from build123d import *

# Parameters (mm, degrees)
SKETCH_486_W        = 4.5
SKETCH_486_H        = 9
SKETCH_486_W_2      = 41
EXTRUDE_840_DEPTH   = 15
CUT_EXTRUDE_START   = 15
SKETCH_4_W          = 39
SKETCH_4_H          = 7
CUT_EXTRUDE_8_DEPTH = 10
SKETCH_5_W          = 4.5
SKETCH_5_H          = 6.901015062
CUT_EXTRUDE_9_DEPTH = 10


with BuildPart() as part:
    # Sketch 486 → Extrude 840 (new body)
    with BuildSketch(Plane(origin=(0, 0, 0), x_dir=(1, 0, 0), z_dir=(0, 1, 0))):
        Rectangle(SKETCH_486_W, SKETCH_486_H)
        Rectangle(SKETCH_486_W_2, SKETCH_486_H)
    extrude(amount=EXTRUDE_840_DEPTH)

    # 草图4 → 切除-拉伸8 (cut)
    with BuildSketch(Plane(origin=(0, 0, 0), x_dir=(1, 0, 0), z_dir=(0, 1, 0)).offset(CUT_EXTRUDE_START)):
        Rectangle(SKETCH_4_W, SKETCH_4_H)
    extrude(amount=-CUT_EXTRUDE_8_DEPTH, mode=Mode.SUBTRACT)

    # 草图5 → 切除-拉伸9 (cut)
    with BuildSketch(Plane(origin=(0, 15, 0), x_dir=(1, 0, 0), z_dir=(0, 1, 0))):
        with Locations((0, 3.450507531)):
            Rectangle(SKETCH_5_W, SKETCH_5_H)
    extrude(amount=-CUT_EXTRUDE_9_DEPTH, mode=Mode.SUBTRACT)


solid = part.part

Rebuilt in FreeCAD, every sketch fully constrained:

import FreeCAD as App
import Part
import Sketcher
Q = App.Units.Quantity

doc = App.newDocument("Part")
body = doc.addObject("PartDesign::Body", "Body")

# Sketch on XZ plane
sketch1 = body.newObject("Sketcher::SketchObject", "Sketch")
sketch1.AttachmentSupport = (doc.getObject("XZ_Plane"), [""])
sketch1.MapMode = "FlatFace"
sketch1.addGeometry([
    Part.LineSegment(App.Vector(20.5, 4.5, 0), App.Vector(20.5, -4.5, 0)),
    Part.LineSegment(App.Vector(20.5, -4.5, 0), App.Vector(-20.5, -4.5, 0)),
    Part.LineSegment(App.Vector(-20.5, -4.5, 0), App.Vector(-20.5, 4.5, 0)),
    Part.LineSegment(App.Vector(-20.5, 4.5, 0), App.Vector(20.5, 4.5, 0)),
], False)
sketch1.addConstraint([
    Sketcher.Constraint("Coincident", 0, 2, 1, 1),
    Sketcher.Constraint("Coincident", 1, 2, 2, 1),
    Sketcher.Constraint("Coincident", 2, 2, 3, 1),
    Sketcher.Constraint("Coincident", 3, 2, 0, 1),
    Sketcher.Constraint("Vertical", 0),
    Sketcher.Constraint("Horizontal", 1),
    Sketcher.Constraint("Vertical", 2),
    Sketcher.Constraint("Horizontal", 3),
    Sketcher.Constraint("Symmetric", 0, 2, 2, 2, -1, 1),
    Sketcher.Constraint("DistanceX", 1, 2, 1, 1, Q("41 mm")),
    Sketcher.Constraint("DistanceY", 0, 2, 0, 1, Q("9 mm")),
])
pad1 = body.newObject("PartDesign::Pad", "Pad")
pad1.Profile = sketch1
pad1.Length = 15
pad1.Reversed = True

# Sketch on XZ plane
sketch2 = body.newObject("Sketcher::SketchObject", "Sketch001")
sketch2.AttachmentSupport = (doc.getObject("XZ_Plane"), [""])
sketch2.MapMode = "FlatFace"
sketch2.AttachmentOffset = App.Placement(App.Vector(0, 0, -15), App.Rotation())
sketch2.addGeometry([
    Part.LineSegment(App.Vector(-19.5, -3.5, 0), App.Vector(-19.5, 3.5, 0)),
    Part.LineSegment(App.Vector(-19.5, 3.5, 0), App.Vector(19.5, 3.5, 0)),
    Part.LineSegment(App.Vector(19.5, 3.5, 0), App.Vector(19.5, -3.5, 0)),
    Part.LineSegment(App.Vector(19.5, -3.5, 0), App.Vector(-19.5, -3.5, 0)),
], False)
sketch2.addConstraint([
    Sketcher.Constraint("Coincident", 0, 2, 1, 1),
    Sketcher.Constraint("Coincident", 1, 2, 2, 1),
    Sketcher.Constraint("Coincident", 2, 2, 3, 1),
    Sketcher.Constraint("Coincident", 3, 2, 0, 1),
    Sketcher.Constraint("Vertical", 0),
    Sketcher.Constraint("Horizontal", 1),
    Sketcher.Constraint("Vertical", 2),
    Sketcher.Constraint("Horizontal", 3),
    Sketcher.Constraint("Symmetric", 0, 2, 2, 2, -1, 1),
    Sketcher.Constraint("DistanceX", 1, 1, 1, 2, Q("39 mm")),
    Sketcher.Constraint("DistanceY", 0, 1, 0, 2, Q("7 mm")),
])
pocket1 = body.newObject("PartDesign::Pocket", "Pocket")
pocket1.Profile = sketch2
pocket1.Length = 10
pocket1.Reversed = True

# Sketch on XZ plane
sketch3 = body.newObject("Sketcher::SketchObject", "Sketch002")
sketch3.AttachmentSupport = (doc.getObject("XZ_Plane"), [""])
sketch3.MapMode = "FlatFace"
sketch3.AttachmentOffset = App.Placement(App.Vector(0, 0, -15), App.Rotation())
sketch3.addGeometry([
    Part.LineSegment(App.Vector(-2.25, -6.901015, 0), App.Vector(-2.25, 0, 0)),
    Part.LineSegment(App.Vector(-2.25, 0, 0), App.Vector(2.25, 0, 0)),
    Part.LineSegment(App.Vector(2.25, 0, 0), App.Vector(2.25, -6.901015, 0)),
    Part.LineSegment(App.Vector(2.25, -6.901015, 0), App.Vector(-2.25, -6.901015, 0)),
], False)
sketch3.addConstraint([
    Sketcher.Constraint("Coincident", 0, 2, 1, 1),
    Sketcher.Constraint("Coincident", 1, 2, 2, 1),
    Sketcher.Constraint("Coincident", 2, 2, 3, 1),
    Sketcher.Constraint("Coincident", 3, 2, 0, 1),
    Sketcher.Constraint("Vertical", 0),
    Sketcher.Constraint("Horizontal", 1),
    Sketcher.Constraint("Vertical", 2),
    Sketcher.Constraint("Horizontal", 3),
    Sketcher.Constraint("Symmetric", 0, 2, 1, 2, -1, 1),
    Sketcher.Constraint("DistanceX", 1, 1, 1, 2, Q("4.5 mm")),
    Sketcher.Constraint("DistanceY", 0, 1, 0, 2, Q("6.901015 mm")),
])
pocket2 = body.newObject("PartDesign::Pocket", "Pocket001")
pocket2.Profile = sketch3
pocket2.Length = 10
pocket2.Reversed = True

doc.recompute()
